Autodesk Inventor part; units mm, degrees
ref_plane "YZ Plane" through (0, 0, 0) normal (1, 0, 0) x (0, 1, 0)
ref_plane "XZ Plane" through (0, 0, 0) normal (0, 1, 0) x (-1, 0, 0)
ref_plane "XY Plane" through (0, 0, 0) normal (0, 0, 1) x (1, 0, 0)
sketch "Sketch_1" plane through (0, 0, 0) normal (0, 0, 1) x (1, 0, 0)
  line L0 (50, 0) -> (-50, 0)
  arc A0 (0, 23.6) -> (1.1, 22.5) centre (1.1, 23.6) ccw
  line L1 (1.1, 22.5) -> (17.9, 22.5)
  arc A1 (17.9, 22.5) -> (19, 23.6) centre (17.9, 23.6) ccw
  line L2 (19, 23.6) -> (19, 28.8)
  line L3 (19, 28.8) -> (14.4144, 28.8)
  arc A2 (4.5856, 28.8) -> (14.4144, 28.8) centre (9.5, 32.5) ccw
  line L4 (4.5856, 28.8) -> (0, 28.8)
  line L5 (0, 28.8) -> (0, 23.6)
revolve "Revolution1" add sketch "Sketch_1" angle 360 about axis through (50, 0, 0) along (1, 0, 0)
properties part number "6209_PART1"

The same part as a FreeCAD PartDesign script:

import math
import FreeCAD as App
import Part
import Sketcher
from FreeCAD import Vector

doc = App.newDocument("Part")
body = doc.addObject("PartDesign::Body", "Body")

# Sketch on XY plane
sketch1 = body.newObject("Sketcher::SketchObject", "Sketch")
sketch1.AttachmentSupport = (doc.getObject("XY_Plane"), [""])
sketch1.MapMode = "FlatFace"
sketch1.addGeometry([
    Part.LineSegment(Vector(0, 28.8, 0), Vector(0, 23.6, 0)),  # 0
    Part.ArcOfCircle(Part.Circle(Vector(1.1, 23.6, 0), Vector(0, 0, 1), 1.1), math.radians(180), math.radians(270)),  # 1
    Part.LineSegment(Vector(1.1, 22.5, 0), Vector(17.9, 22.5, 0)),  # 2
    Part.ArcOfCircle(Part.Circle(Vector(17.9, 23.6, 0), Vector(0, 0, 1), 1.1), math.radians(-90), math.radians(0)),  # 3
    Part.LineSegment(Vector(19, 23.6, 0), Vector(19, 28.8, 0)),  # 4
    Part.LineSegment(Vector(19, 28.8, 0), Vector(14.4, 28.8, 0)),  # 5
    Part.ArcOfCircle(Part.Circle(Vector(9.5, 32.5, 0), Vector(0, 0, 1), 6.2), math.radians(-143), math.radians(-37)),  # 6
    Part.LineSegment(Vector(4.6, 28.8, 0), Vector(0, 28.8, 0)),  # 7
], False)
sketch1.addConstraint([
    Sketcher.Constraint("Tangent", 0, 2, 1, 1),
    Sketcher.Constraint("Tangent", 1, 2, 2, 1),
    Sketcher.Constraint("Tangent", 2, 2, 3, 1),
    Sketcher.Constraint("Tangent", 3, 2, 4, 1),
    Sketcher.Constraint("Coincident", 4, 2, 5, 1),
    Sketcher.Constraint("Coincident", 5, 2, 6, 2),
    Sketcher.Constraint("Coincident", 6, 1, 7, 1),
    Sketcher.Constraint("Coincident", 7, 2, 0, 1),
    Sketcher.Constraint("Vertical", 0),
    Sketcher.Constraint("Horizontal", 2),
    Sketcher.Constraint("Vertical", 4),
    Sketcher.Constraint("Horizontal", 5),
    Sketcher.Constraint("Horizontal", 7),
    Sketcher.Constraint("Equal", 1, 3),
    Sketcher.Constraint("PointOnObject", 0, 2, -2),
    Sketcher.Constraint("Horizontal", 5, 2, 6, 1),
    Sketcher.Constraint("Equal", 5, 7),
    Sketcher.Constraint("Radius", 1, 1.1),
    Sketcher.Constraint("DistanceX", 2, 1, 2, 2, 16.8),
    Sketcher.Constraint("DistanceY", 0, 2, 0, 1, 5.2),
    Sketcher.Constraint("DistanceY", 1, 2, 6, 3, 10.0),
    Sketcher.Constraint("DistanceY", -1, 1, 1, 3, 23.6),
    Sketcher.Constraint("Radius", 6, 6.1515),
])
revolution = body.newObject("PartDesign::Revolution", "Revolution")
revolution.Profile = sketch1
revolution.ReferenceAxis = (sketch1, ["H_Axis"])
revolution.Angle = 360

doc.recompute()
